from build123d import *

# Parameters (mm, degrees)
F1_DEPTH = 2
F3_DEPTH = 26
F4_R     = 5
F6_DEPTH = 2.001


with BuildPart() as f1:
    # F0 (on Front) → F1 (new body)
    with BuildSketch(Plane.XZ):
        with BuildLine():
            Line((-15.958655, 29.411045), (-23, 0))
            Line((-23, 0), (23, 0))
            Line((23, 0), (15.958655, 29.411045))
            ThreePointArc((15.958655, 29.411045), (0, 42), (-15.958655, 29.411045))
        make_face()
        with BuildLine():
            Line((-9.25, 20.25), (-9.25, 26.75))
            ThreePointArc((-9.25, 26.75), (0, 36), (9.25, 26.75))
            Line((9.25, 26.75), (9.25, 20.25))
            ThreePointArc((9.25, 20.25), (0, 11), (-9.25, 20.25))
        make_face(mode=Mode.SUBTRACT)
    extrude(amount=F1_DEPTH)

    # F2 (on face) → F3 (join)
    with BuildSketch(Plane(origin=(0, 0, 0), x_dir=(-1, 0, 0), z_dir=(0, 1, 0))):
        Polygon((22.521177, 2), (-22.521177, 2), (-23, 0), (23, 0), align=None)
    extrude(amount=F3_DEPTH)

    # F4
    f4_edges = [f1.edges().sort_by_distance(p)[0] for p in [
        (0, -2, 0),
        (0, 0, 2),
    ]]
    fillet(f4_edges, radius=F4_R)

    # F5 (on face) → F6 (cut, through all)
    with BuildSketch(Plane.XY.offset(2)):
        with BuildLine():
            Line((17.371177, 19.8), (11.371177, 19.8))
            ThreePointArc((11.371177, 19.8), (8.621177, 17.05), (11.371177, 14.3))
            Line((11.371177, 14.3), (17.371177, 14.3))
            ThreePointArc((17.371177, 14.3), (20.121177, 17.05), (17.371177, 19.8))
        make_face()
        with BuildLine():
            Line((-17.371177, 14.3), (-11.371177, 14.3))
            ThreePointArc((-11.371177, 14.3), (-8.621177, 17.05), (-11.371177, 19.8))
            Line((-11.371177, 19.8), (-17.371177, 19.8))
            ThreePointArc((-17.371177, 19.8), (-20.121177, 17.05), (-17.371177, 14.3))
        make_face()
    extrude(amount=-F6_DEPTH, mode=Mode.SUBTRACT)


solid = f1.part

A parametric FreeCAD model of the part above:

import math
import FreeCAD as App
import Part
import Sketcher

V = App.Vector


def edges_at(feature, points):
    """Names of the edges that pass closest to the given points."""
    edges = feature.Shape.Edges
    near = lambda p: min(range(len(edges)), key=lambda i: edges[i].distToShape(Part.Vertex(*p))[0])
    return sorted({f"Edge{near(p) + 1}" for p in points})


def add_polygon(sketch, points):
    """Adds a closed chain of lines whose ends are joined by coincident constraints."""
    first, n = sketch.GeometryCount, len(points)
    for a, b in zip(points, points[1:] + points[:1]):
        sketch.addGeometry(Part.LineSegment(App.Vector(*a, 0), App.Vector(*b, 0)), False)
    for i in range(n):
        sketch.addConstraint(Sketcher.Constraint("Coincident", first + i, 2, first + (i + 1) % n, 1))

doc = App.newDocument("Part")
body = doc.addObject("PartDesign::Body", "Body")

sketch1 = body.newObject("Sketcher::SketchObject", "Sketch")
sketch1.AttachmentSupport = (doc.getObject("XZ_Plane"), [""])
sketch1.MapMode = "FlatFace"
sketch1.addGeometry([
    Part.LineSegment(V(-15.958655, 29.411045, 0), V(-23, 0, 0)),
    Part.LineSegment(V(-23, 0, 0), V(23, 0, 0)),
    Part.LineSegment(V(23, 0, 0), V(15.958655, 29.411045, 0)),
    Part.ArcOfCircle(Part.Circle(V(0, 25.590359, 0), V(0, 0, 1), 16.409641), math.radians(13.463848), math.radians(166.536152)),
    Part.ArcOfCircle(Part.Circle(V(0, 20.25, 0), V(0, 0, 1), 9.25), math.radians(180), math.radians(360)),
    Part.LineSegment(V(-9.25, 20.25, 0), V(-9.25, 26.75, 0)),
    Part.ArcOfCircle(Part.Circle(V(0, 26.75, 0), V(0, 0, 1), 9.25), math.radians(0), math.radians(180)),
    Part.LineSegment(V(9.25, 26.75, 0), V(9.25, 20.25, 0)),
], False)
sketch1.addConstraint([
    Sketcher.Constraint("Coincident", 0, 2, 1, 1),
    Sketcher.Constraint("Coincident", 1, 2, 2, 1),
    Sketcher.Constraint("Tangent", 2, 2, 3, 1),
    Sketcher.Constraint("Tangent", 3, 2, 0, 1),
    Sketcher.Constraint("Tangent", 4, 1, 5, 1),
    Sketcher.Constraint("Tangent", 5, 2, 6, 2),
    Sketcher.Constraint("Tangent", 6, 1, 7, 1),
    Sketcher.Constraint("Tangent", 7, 2, 4, 2),
    Sketcher.Constraint("Horizontal", 1),
    Sketcher.Constraint("Vertical", 5),
    Sketcher.Constraint("Vertical", 7),
    Sketcher.Constraint("Symmetric", 0, 2, 1, 2, -1, 1),
    Sketcher.Constraint("PointOnObject", 3, 3, -2),
    Sketcher.Constraint("PointOnObject", 4, 3, -2),
    Sketcher.Constraint("DistanceX", 1, 1, 1, 2, 46.0),
    Sketcher.Constraint("Radius", 4, 9.25),
    Sketcher.Constraint("DistanceY", 5, 1, 5, 2, 6.5),
    Sketcher.Constraint("DistanceY", -1, 1, 4, 3, 20.25),
    Sketcher.Constraint("Radius", 3, 16.409641),
    Sketcher.Constraint("Distance", 0, 30.242191),
])
pad1 = body.newObject("PartDesign::Pad", "Pad")
pad1.Profile = sketch1
pad1.Length = 2

sketch2 = body.newObject("Sketcher::SketchObject", "Sketch001")
sketch2.AttachmentSupport = (doc.getObject("XZ_Plane"), [""])
sketch2.MapMode = "FlatFace"
add_polygon(sketch2, [(-22.521177, 2), (22.521177, 2), (23, 0), (-23, 0)])
sketch2.addConstraint([
    Sketcher.Constraint("Horizontal", 0),
    Sketcher.Constraint("Horizontal", 2),
    Sketcher.Constraint("Symmetric", 1, 2, 2, 2, -1, 1),
    Sketcher.Constraint("Equal", 1, 3),
    Sketcher.Constraint("DistanceX", 2, 2, 2, 1, 46.0),
    Sketcher.Constraint("DistanceY", -1, 1, 0, 2, 2.0),
    Sketcher.Constraint("Distance", 1, 2.056519),
])
pad2 = body.newObject("PartDesign::Pad", "Pad001")
pad2.Profile = sketch2
pad2.Length = 26
pad2.Reversed = True
doc.recompute()

fillet = body.newObject("PartDesign::Fillet", "Fillet")
fillet.Base = (pad2, edges_at(pad2, [(0, -2, 0), (0, 0, 2)]))
fillet.Radius = 5

sketch3 = body.newObject("Sketcher::SketchObject", "Sketch002")
sketch3.AttachmentSupport = (doc.getObject("XY_Plane"), [""])
sketch3.MapMode = "FlatFace"
sketch3.AttachmentOffset = App.Placement(V(0, 0, 2), App.Rotation())
sketch3.addGeometry([
    Part.LineSegment(V(17.371177, 19.8, 0), V(11.371177, 19.8, 0)),
    Part.ArcOfCircle(Part.Circle(V(11.371177, 17.05, 0), V(0, 0, 1), 2.75), math.radians(90), math.radians(270)),
    Part.LineSegment(V(11.371177, 14.3, 0), V(17.371177, 14.3, 0)),
    Part.ArcOfCircle(Part.Circle(V(17.371177, 17.05, 0), V(0, 0, 1), 2.75), math.radians(-90), math.radians(90)),
    Part.LineSegment(V(-17.371177, 14.3, 0), V(-11.371177, 14.3, 0)),
    Part.ArcOfCircle(Part.Circle(V(-11.371177, 17.05, 0), V(0, 0, 1), 2.75), math.radians(-90), math.radians(90)),
    Part.LineSegment(V(-11.371177, 19.8, 0), V(-17.371177, 19.8, 0)),
    Part.ArcOfCircle(Part.Circle(V(-17.371177, 17.05, 0), V(0, 0, 1), 2.75), math.radians(90), math.radians(270)),
], False)
sketch3.addConstraint([
    Sketcher.Constraint("Tangent", 0, 2, 1, 1),
    Sketcher.Constraint("Tangent", 1, 2, 2, 1),
    Sketcher.Constraint("Tangent", 2, 2, 3, 1),
    Sketcher.Constraint("Tangent", 3, 2, 0, 1),
    Sketcher.Constraint("Tangent", 4, 2, 5, 1),
    Sketcher.Constraint("Tangent", 5, 2, 6, 1),
    Sketcher.Constraint("Tangent", 6, 2, 7, 1),
    Sketcher.Constraint("Tangent", 7, 2, 4, 1),
    Sketcher.Constraint("Horizontal", 0),
    Sketcher.Constraint("Horizontal", 2),
    Sketcher.Constraint("Horizontal", 4),
    Sketcher.Constraint("Horizontal", 6),
    Sketcher.Constraint("Equal", 3, 5),
    Sketcher.Constraint("Symmetric", 1, 3, 5, 3, -2),
    Sketcher.Constraint("Equal", 2, 4),
    Sketcher.Constraint("DistanceX", 0, 2, 0, 1, 6.0),
    Sketcher.Constraint("Radius", 1, 2.75),
    Sketcher.Constraint("DistanceY", -1, 1, 0, 2, 19.8),
    Sketcher.Constraint("DistanceX", -1, 1, 1, 3, 11.371177),
])
pocket1 = body.newObject("PartDesign::Pocket", "Pocket")
pocket1.Profile = sketch3
pocket1.Type = "ThroughAll"

doc.recompute()
